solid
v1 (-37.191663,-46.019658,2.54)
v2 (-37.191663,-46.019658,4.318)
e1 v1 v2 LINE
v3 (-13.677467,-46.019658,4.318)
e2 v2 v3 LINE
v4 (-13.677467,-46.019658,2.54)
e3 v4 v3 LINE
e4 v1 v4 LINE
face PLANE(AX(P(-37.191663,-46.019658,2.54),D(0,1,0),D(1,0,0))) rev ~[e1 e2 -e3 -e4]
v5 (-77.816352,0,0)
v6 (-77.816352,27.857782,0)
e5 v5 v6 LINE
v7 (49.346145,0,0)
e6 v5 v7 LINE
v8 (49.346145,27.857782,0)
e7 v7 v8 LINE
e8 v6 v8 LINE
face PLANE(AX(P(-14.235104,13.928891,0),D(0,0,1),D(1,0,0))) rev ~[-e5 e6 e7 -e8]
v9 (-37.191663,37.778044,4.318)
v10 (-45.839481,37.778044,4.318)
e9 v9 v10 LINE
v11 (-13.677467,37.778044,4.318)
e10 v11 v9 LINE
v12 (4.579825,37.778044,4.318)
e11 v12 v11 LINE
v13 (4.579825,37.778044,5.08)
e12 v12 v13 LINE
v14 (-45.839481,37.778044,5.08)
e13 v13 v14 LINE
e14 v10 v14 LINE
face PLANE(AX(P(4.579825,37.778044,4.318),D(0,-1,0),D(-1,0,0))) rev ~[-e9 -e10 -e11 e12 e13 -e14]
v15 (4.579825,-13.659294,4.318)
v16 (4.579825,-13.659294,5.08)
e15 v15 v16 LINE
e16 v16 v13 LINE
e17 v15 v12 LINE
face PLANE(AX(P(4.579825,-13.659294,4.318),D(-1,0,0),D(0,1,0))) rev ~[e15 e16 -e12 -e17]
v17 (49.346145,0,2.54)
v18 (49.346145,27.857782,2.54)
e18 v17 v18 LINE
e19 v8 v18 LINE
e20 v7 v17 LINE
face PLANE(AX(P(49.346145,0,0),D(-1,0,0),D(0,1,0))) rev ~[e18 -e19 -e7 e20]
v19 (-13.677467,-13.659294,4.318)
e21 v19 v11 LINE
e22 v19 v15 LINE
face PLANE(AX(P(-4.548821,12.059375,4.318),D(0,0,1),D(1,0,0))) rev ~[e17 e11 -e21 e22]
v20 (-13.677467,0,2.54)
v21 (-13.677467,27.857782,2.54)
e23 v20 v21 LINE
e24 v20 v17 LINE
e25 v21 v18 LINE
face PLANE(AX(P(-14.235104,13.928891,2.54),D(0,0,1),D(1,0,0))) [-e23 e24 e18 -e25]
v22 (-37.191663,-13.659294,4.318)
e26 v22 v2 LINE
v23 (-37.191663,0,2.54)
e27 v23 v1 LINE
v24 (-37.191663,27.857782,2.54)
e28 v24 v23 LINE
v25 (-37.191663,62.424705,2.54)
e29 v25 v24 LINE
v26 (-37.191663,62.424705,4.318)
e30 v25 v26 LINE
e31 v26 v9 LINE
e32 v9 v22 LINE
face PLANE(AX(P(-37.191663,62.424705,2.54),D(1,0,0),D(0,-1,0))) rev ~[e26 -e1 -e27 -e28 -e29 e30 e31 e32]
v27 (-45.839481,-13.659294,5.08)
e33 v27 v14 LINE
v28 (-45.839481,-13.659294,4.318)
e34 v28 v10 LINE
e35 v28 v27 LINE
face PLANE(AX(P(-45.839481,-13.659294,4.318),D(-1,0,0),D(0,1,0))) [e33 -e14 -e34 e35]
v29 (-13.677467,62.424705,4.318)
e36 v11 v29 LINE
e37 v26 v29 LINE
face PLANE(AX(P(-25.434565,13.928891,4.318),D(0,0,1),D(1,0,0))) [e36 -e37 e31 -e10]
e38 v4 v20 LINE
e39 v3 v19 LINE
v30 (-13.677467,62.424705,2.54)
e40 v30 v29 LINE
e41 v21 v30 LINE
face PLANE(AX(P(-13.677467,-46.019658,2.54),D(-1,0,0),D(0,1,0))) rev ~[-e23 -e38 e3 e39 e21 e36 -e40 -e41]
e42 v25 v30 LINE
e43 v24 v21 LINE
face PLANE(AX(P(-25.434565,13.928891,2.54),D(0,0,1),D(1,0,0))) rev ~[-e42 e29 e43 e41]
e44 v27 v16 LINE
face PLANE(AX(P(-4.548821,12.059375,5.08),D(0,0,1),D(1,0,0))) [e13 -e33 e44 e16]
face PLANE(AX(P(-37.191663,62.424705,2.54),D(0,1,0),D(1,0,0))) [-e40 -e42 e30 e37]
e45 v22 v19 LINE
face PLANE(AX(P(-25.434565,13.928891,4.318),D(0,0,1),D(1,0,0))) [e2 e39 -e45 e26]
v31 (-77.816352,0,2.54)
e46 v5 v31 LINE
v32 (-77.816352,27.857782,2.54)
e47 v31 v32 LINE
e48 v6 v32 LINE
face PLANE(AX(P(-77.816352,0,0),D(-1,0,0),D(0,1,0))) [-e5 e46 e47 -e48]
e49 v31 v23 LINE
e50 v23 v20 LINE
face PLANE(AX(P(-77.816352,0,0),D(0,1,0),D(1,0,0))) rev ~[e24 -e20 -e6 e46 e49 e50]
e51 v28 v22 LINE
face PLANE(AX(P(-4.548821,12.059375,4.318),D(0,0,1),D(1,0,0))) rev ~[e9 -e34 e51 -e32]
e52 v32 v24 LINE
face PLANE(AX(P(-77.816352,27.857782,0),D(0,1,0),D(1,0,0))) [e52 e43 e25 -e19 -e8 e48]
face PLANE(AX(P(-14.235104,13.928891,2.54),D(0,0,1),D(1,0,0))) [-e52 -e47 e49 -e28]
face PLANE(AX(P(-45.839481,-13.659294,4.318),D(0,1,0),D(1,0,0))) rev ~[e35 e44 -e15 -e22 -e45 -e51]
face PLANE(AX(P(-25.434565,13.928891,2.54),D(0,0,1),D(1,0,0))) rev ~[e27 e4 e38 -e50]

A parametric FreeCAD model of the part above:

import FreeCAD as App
import Part
import Sketcher
from FreeCAD import Vector
Q = App.Units.Quantity


def add_polygon(sketch, points):
    """Adds a closed chain of lines whose ends are joined by coincident constraints."""
    first, n = sketch.GeometryCount, len(points)
    for a, b in zip(points, points[1:] + points[:1]):
        sketch.addGeometry(Part.LineSegment(App.Vector(*a, 0), App.Vector(*b, 0)), False)
    for i in range(n):
        sketch.addConstraint(Sketcher.Constraint("Coincident", first + i, 2, first + (i + 1) % n, 1))

doc = App.newDocument("Part")
body = doc.addObject("PartDesign::Body", "Body")

# Sketch on XY plane
sketch1 = body.newObject("Sketcher::SketchObject", "Sketch")
sketch1.AttachmentSupport = (doc.getObject("XY_Plane"), [""])
sketch1.MapMode = "FlatFace"
add_polygon(sketch1, [(-77.816352, 27.857782), (-77.816352, 0), (49.346145, 0), (49.346145, 27.857782)])  # lines 0-3
sketch1.addConstraint([
    Sketcher.Constraint("Vertical", 0),
    Sketcher.Constraint("Horizontal", 1),
    Sketcher.Constraint("Vertical", 2),
    Sketcher.Constraint("Horizontal", 3),
    Sketcher.Constraint("PointOnObject", 0, 2, -1),
    Sketcher.Constraint("DistanceX", 1, 1, 1, 2, 127.162497),
    Sketcher.Constraint("DistanceY", 0, 2, 0, 1, 27.857782),
    Sketcher.Constraint("DistanceX", 0, 2, -1, 1, 77.816352),
])
pad1 = body.newObject("PartDesign::Pad", "Pad")
pad1.Profile = sketch1
pad1.Length = Q("0.1 in")

# Sketch on XY plane
sketch2 = body.newObject("Sketcher::SketchObject", "Sketch001")
sketch2.AttachmentSupport = (doc.getObject("XY_Plane"), [""])
sketch2.MapMode = "FlatFace"
sketch2.AttachmentOffset = App.Placement(Vector(0, 0, 0.1 * 25.4), App.Rotation())
add_polygon(sketch2, [(-37.191663, -46.019658), (-13.677467, -46.019658), (-13.677467, 62.424705), (-37.191663, 62.424705)])  # lines 0-3
sketch2.addConstraint([
    Sketcher.Constraint("Horizontal", 0),
    Sketcher.Constraint("Vertical", 1),
    Sketcher.Constraint("Horizontal", 2),
    Sketcher.Constraint("Vertical", 3),
    Sketcher.Constraint("DistanceX", 0, 1, 0, 2, 23.514196),
    Sketcher.Constraint("DistanceY", 1, 1, 1, 2, 108.444363),
    Sketcher.Constraint("DistanceX", 0, 2, -1, 1, 13.677467),
    Sketcher.Constraint("DistanceY", 0, 2, -1, 1, 46.019658),
])
pad2 = body.newObject("PartDesign::Pad", "Pad001")
pad2.Profile = sketch2
pad2.Length = Q("0.07 in")

# Sketch on XY plane
sketch3 = body.newObject("Sketcher::SketchObject", "Sketch002")
sketch3.AttachmentSupport = (doc.getObject("XY_Plane"), [""])
sketch3.MapMode = "FlatFace"
sketch3.AttachmentOffset = App.Placement(Vector(0, 0, 0.17 * 25.4), App.Rotation())
add_polygon(sketch3, [(4.579825, -13.659294), (4.579825, 37.778044), (-45.839481, 37.778044), (-45.839481, -13.659294)])  # lines 0-3
sketch3.addConstraint([
    Sketcher.Constraint("Vertical", 0),
    Sketcher.Constraint("Horizontal", 1),
    Sketcher.Constraint("Vertical", 2),
    Sketcher.Constraint("Horizontal", 3),
    Sketcher.Constraint("DistanceX", 1, 2, 1, 1, 50.419306),
    Sketcher.Constraint("DistanceY", 0, 1, 0, 2, 51.437337),
    Sketcher.Constraint("DistanceX", 1, 2, -1, 1, 45.839481),
    Sketcher.Constraint("DistanceY", -1, 1, 0, 2, 37.778044),
])
pad3 = body.newObject("PartDesign::Pad", "Pad002")
pad3.Profile = sketch3
pad3.Length = Q("0.03 in")

doc.recompute()
